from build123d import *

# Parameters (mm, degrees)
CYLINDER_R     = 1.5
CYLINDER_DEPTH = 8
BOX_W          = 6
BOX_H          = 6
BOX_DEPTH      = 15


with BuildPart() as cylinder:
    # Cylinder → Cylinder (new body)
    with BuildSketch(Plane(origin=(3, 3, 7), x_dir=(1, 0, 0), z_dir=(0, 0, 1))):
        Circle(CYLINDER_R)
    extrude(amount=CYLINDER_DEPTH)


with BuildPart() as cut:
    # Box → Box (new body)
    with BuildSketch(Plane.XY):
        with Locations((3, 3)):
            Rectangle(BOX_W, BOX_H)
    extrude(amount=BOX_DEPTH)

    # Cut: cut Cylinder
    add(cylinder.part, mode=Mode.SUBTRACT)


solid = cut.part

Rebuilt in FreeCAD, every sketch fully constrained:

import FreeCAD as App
import Part
import Sketcher
from FreeCAD import Vector
Q = App.Units.Quantity


def add_polygon(sketch, points):
    """Adds a closed chain of lines whose ends are joined by coincident constraints."""
    first, n = sketch.GeometryCount, len(points)
    for a, b in zip(points, points[1:] + points[:1]):
        sketch.addGeometry(Part.LineSegment(App.Vector(*a, 0), App.Vector(*b, 0)), False)
    for i in range(n):
        sketch.addConstraint(Sketcher.Constraint("Coincident", first + i, 2, first + (i + 1) % n, 1))

doc = App.newDocument("Part")
params = doc.addObject("Spreadsheet::Sheet", "Params")
for row, (alias, value) in enumerate([
    ("sketch1_diameter", "3 mm"),
    ("pad1_length", "8 mm"),
    ("sketch2_width", "6 mm"),
    ("pad2_length", "15 mm"),
], start=1):
    params.set(f"A{row}", alias)
    params.set(f"B{row}", "=" + value)
    params.setAlias(f"B{row}", alias)

body = doc.addObject("PartDesign::Body", "Body")

# Sketch on XY plane
sketch1 = body.newObject("Sketcher::SketchObject", "Sketch")
sketch1.AttachmentSupport = (doc.getObject("XY_Plane"), [""])
sketch1.MapMode = "FlatFace"
sketch1.AttachmentOffset = App.Placement(Vector(0, 0, 7), App.Rotation())
sketch1.addGeometry(Part.Circle(Vector(3, 3, 0), Vector(0, 0, 1), 1.5), False)
sketch1.addConstraint([
    Sketcher.Constraint("Diameter", 0, Q("3 mm")),
    Sketcher.Constraint("DistanceX", -1, 1, 0, 3, Q("3 mm")),
    Sketcher.Constraint("DistanceY", -1, 1, 0, 3, Q("3 mm")),
])
sketch1.setExpression("Constraints[0]", "Params.sketch1_diameter")
pad1 = body.newObject("PartDesign::Pad", "Pad")
pad1.Profile = sketch1
pad1.setExpression("Length", "Params.pad1_length")
body2 = doc.addObject("PartDesign::Body", "Body001")

# Sketch on XY plane
sketch2 = body2.newObject("Sketcher::SketchObject", "Sketch001")
sketch2.AttachmentSupport = (doc.getObject("XY_Plane001"), [""])
sketch2.MapMode = "FlatFace"
add_polygon(sketch2, [(0, 6), (0, 0), (6, 0), (6, 6)])  # lines 0-3
sketch2.addConstraint([
    Sketcher.Constraint("Vertical", 0),
    Sketcher.Constraint("Horizontal", 1),
    Sketcher.Constraint("Vertical", 2),
    Sketcher.Constraint("Horizontal", 3),
    Sketcher.Constraint("Coincident", 0, 2, -1, 1),
    Sketcher.Constraint("Equal", 3, 0),
    Sketcher.Constraint("DistanceX", 1, 1, 1, 2, Q("6 mm")),
])
sketch2.setExpression("Constraints[10]", "Params.sketch2_width")
pad2 = body2.newObject("PartDesign::Pad", "Pad001")
pad2.Profile = sketch2
pad2.setExpression("Length", "Params.pad2_length")
doc.recompute()

boolean = body2.newObject("PartDesign::Boolean", "Boolean")
boolean.Type = "Cut"
boolean.addObjects([body])

doc.recompute()
